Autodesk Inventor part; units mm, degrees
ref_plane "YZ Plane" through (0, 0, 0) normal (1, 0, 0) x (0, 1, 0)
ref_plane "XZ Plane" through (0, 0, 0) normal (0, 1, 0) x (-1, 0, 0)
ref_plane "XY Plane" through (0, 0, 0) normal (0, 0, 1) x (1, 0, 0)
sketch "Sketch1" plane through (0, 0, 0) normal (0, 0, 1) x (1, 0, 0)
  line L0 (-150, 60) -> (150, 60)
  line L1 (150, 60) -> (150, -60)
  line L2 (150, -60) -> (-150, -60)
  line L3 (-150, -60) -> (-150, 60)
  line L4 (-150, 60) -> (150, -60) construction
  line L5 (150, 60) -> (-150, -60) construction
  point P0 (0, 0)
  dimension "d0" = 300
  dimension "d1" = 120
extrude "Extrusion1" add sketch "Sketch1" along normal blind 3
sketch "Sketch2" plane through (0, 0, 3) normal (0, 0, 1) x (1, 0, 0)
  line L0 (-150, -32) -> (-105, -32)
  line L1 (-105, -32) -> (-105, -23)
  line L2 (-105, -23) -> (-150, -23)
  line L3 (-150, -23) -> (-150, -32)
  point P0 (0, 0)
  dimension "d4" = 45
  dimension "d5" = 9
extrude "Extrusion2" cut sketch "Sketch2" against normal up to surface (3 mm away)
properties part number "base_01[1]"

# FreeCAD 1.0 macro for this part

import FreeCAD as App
import Part
import Sketcher

V = App.Vector

doc = App.newDocument("Part")
body = doc.addObject("PartDesign::Body", "Body")

# Sketch on XY plane
sketch1 = body.newObject("Sketcher::SketchObject", "Sketch")
sketch1.AttachmentSupport = (doc.getObject("XY_Plane"), [""])
sketch1.MapMode = "FlatFace"
sketch1.addGeometry([
    Part.LineSegment(V(150, 60, 0), V(-150, 60, 0)),
    Part.LineSegment(V(-150, 60, 0), V(-150, -60, 0)),
    Part.LineSegment(V(-150, -60, 0), V(150, -60, 0)),
    Part.LineSegment(V(150, -60, 0), V(150, 60, 0)),
], False)
sketch1.addConstraint([
    Sketcher.Constraint("Coincident", 0, 2, 1, 1),
    Sketcher.Constraint("Coincident", 1, 2, 2, 1),
    Sketcher.Constraint("Coincident", 2, 2, 3, 1),
    Sketcher.Constraint("Coincident", 3, 2, 0, 1),
    Sketcher.Constraint("Horizontal", 0),
    Sketcher.Constraint("Vertical", 1),
    Sketcher.Constraint("Horizontal", 2),
    Sketcher.Constraint("Vertical", 3),
    Sketcher.Constraint("Symmetric", 0, 2, 2, 2, -1, 1),
    Sketcher.Constraint("DistanceX", 0, 2, 0, 1, 300.0),
    Sketcher.Constraint("DistanceY", 1, 2, 1, 1, 120.0),
])
pad1 = body.newObject("PartDesign::Pad", "Pad")
pad1.Profile = sketch1
pad1.Length = 3

# Sketch on XY plane
sketch2 = body.newObject("Sketcher::SketchObject", "Sketch001")
sketch2.AttachmentSupport = (doc.getObject("XY_Plane"), [""])
sketch2.MapMode = "FlatFace"
sketch2.AttachmentOffset = App.Placement(V(0, 0, 3), App.Rotation())
sketch2.addGeometry([
    Part.LineSegment(V(-150, -23, 0), V(-150, -32, 0)),
    Part.LineSegment(V(-150, -32, 0), V(-105, -32, 0)),
    Part.LineSegment(V(-105, -32, 0), V(-105, -23, 0)),
    Part.LineSegment(V(-105, -23, 0), V(-150, -23, 0)),
], False)
sketch2.addConstraint([
    Sketcher.Constraint("Coincident", 0, 2, 1, 1),
    Sketcher.Constraint("Coincident", 1, 2, 2, 1),
    Sketcher.Constraint("Coincident", 2, 2, 3, 1),
    Sketcher.Constraint("Coincident", 3, 2, 0, 1),
    Sketcher.Constraint("Vertical", 0),
    Sketcher.Constraint("Horizontal", 1),
    Sketcher.Constraint("Vertical", 2),
    Sketcher.Constraint("Horizontal", 3),
    Sketcher.Constraint("DistanceX", 1, 1, 1, 2, 45.0),
    Sketcher.Constraint("DistanceY", 0, 2, 0, 1, 9.0),
    Sketcher.Constraint("DistanceX", 0, 2, -1, 1, 150.0),
    Sketcher.Constraint("DistanceY", 0, 2, -1, 1, 32.0),
])
pocket1 = body.newObject("PartDesign::Pocket", "Pocket")
pocket1.Profile = sketch2
pocket1.Length = 3

doc.recompute()
